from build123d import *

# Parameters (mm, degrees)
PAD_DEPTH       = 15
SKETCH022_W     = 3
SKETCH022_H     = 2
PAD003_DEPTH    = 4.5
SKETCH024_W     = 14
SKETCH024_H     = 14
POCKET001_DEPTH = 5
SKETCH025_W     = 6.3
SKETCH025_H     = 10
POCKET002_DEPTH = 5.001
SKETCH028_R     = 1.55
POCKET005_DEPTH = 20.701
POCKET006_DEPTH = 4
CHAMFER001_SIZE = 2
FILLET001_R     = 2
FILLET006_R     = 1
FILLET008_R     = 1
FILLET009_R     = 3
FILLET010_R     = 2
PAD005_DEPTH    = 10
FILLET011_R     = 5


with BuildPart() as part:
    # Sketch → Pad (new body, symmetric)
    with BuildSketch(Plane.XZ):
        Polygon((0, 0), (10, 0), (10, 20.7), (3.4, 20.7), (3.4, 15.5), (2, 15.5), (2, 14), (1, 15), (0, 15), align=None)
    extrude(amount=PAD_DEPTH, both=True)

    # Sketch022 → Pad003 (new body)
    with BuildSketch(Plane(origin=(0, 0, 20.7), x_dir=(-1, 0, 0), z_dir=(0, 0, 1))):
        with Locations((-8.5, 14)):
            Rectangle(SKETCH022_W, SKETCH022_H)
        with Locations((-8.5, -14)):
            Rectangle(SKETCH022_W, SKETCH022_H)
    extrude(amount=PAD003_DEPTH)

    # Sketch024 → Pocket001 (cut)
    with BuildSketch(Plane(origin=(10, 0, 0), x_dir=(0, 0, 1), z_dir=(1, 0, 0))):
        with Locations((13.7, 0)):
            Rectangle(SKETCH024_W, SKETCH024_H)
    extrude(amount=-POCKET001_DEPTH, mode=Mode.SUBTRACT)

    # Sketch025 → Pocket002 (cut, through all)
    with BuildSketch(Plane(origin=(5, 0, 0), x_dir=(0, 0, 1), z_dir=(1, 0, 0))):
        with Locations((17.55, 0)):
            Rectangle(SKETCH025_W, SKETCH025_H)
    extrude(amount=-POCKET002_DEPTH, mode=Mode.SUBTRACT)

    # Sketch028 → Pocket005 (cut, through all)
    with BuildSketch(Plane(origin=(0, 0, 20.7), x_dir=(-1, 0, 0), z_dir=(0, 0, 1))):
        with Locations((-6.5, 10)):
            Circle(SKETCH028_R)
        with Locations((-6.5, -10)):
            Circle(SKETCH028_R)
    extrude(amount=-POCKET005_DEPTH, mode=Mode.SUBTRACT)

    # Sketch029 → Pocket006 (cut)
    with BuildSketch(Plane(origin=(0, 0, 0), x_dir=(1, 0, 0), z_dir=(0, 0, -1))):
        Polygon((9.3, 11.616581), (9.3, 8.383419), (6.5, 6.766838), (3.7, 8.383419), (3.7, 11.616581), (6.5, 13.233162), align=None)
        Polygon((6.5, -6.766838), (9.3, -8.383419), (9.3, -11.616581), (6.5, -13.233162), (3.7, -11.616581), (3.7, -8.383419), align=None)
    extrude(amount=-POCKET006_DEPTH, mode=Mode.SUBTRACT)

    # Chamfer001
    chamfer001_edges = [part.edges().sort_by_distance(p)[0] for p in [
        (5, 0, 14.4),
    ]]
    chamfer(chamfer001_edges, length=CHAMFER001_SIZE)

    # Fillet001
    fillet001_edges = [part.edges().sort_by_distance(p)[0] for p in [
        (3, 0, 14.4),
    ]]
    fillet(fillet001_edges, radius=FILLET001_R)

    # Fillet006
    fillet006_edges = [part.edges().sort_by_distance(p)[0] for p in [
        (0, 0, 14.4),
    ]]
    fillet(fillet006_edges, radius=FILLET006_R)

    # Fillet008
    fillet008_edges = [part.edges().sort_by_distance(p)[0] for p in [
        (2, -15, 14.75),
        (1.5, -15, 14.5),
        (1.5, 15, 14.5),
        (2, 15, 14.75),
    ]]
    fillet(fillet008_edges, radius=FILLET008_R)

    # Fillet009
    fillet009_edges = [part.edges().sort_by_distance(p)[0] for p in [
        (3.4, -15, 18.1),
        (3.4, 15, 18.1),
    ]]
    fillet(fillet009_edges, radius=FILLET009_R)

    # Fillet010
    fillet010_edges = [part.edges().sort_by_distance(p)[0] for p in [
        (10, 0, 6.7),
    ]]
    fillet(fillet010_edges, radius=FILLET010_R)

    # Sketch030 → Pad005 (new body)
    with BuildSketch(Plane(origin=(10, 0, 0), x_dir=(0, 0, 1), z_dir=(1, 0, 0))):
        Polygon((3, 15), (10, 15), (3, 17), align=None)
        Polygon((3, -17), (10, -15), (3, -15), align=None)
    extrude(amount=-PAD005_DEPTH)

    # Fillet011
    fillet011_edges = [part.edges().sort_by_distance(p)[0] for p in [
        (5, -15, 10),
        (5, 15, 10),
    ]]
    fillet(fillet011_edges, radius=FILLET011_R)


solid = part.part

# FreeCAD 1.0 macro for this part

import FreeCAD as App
import Part
import Sketcher

V = App.Vector
Q = App.Units.Quantity


def edges_at(feature, points):
    """Names of the edges that pass closest to the given points."""
    edges = feature.Shape.Edges
    near = lambda p: min(range(len(edges)), key=lambda i: edges[i].distToShape(Part.Vertex(*p))[0])
    return sorted({f"Edge{near(p) + 1}" for p in points})


def add_polygon(sketch, points):
    """Adds a closed chain of lines whose ends are joined by coincident constraints."""
    first, n = sketch.GeometryCount, len(points)
    for a, b in zip(points, points[1:] + points[:1]):
        sketch.addGeometry(Part.LineSegment(App.Vector(*a, 0), App.Vector(*b, 0)), False)
    for i in range(n):
        sketch.addConstraint(Sketcher.Constraint("Coincident", first + i, 2, first + (i + 1) % n, 1))

doc = App.newDocument("Part")
body = doc.addObject("PartDesign::Body", "Body")

# Sketch on XZ plane
sketch1 = body.newObject("Sketcher::SketchObject", "Sketch")
sketch1.AttachmentSupport = (doc.getObject("XZ_Plane"), [""])
sketch1.MapMode = "FlatFace"
add_polygon(sketch1, [(0, 0), (10, 0), (10, 20.7), (3.4, 20.7), (3.4, 15.5), (2, 15.5), (2, 14), (1, 15), (0, 15)])  # lines 0-8
sketch1.addConstraint(Sketcher.Constraint("Horizontal", 0))
sketch1.addConstraint(Sketcher.Constraint("Vertical", 1))
sketch1.addConstraint(Sketcher.Constraint("Horizontal", 2))
sketch1.addConstraint(Sketcher.Constraint("Vertical", 3))
sketch1.addConstraint(Sketcher.Constraint("Horizontal", 4))
sketch1.addConstraint(Sketcher.Constraint("Vertical", 5))
sketch1.addConstraint(Sketcher.Constraint("Horizontal", 7))
sketch1.addConstraint(Sketcher.Constraint("Vertical", 8))
sketch1.addConstraint(Sketcher.Constraint("Coincident", 8, 2, -1, 1))
sketch1.addConstraint(Sketcher.Constraint("DistanceX", 0, 1, 0, 2, Q("10 mm")))
sketch1.addConstraint(Sketcher.Constraint("DistanceX", 7, 2, 7, 1, Q("1 mm")))
sketch1.addConstraint(Sketcher.Constraint("DistanceY", 8, 2, 8, 1, Q("15 mm")))
sketch1.addConstraint(Sketcher.Constraint("Angle", 6, Q("135 deg")))
sketch1.addConstraint(Sketcher.Constraint("DistanceX", 2, 2, 2, 1, Q("6.6 mm")))
sketch1.addConstraint(Sketcher.Constraint("DistanceX", 4, 2, 4, 1, Q("1.4 mm")))
sketch1.addConstraint(Sketcher.Constraint("DistanceY", 1, 1, 1, 2, Q("20.7 mm")))
sketch1.addConstraint(Sketcher.Constraint("DistanceY", 3, 2, 3, 1, Q("5.2 mm")))
pad1 = body.newObject("PartDesign::Pad", "Pad")
pad1.Profile = sketch1
pad1.Length = 30
pad1.Midplane = True

# Sketch on XY plane
sketch2 = body.newObject("Sketcher::SketchObject", "Sketch001")
sketch2.AttachmentSupport = (doc.getObject("XY_Plane"), [""])
sketch2.MapMode = "FlatFace"
sketch2.AttachmentOffset = App.Placement(V(0, 0, 20.7), App.Rotation())
add_polygon(sketch2, [(10, -15), (10, -13), (7, -13), (7, -15)])  # lines 0-3
add_polygon(sketch2, [(10, 13), (10, 15), (7, 15), (7, 13)])  # lines 4-7
sketch2.addConstraint(Sketcher.Constraint("Vertical", 0))
sketch2.addConstraint(Sketcher.Constraint("Horizontal", 1))
sketch2.addConstraint(Sketcher.Constraint("Vertical", 2))
sketch2.addConstraint(Sketcher.Constraint("Horizontal", 3))
sketch2.addConstraint(Sketcher.Constraint("Vertical", 4))
sketch2.addConstraint(Sketcher.Constraint("Horizontal", 5))
sketch2.addConstraint(Sketcher.Constraint("Vertical", 6))
sketch2.addConstraint(Sketcher.Constraint("Horizontal", 7))
sketch2.addConstraint(Sketcher.Constraint("Symmetric", 3, 2, 4, 2, -1))
sketch2.addConstraint(Sketcher.Constraint("Symmetric", 1, 2, 6, 2, -1))
sketch2.addConstraint(Sketcher.Constraint("DistanceX", 1, 2, 1, 1, Q("3 mm")))
sketch2.addConstraint(Sketcher.Constraint("DistanceY", 0, 1, 0, 2, Q("2 mm")))
sketch2.addConstraint(Sketcher.Constraint("DistanceX", -1, 1, 0, 2, Q("10 mm")))
sketch2.addConstraint(Sketcher.Constraint("DistanceY", 0, 2, -1, 1, Q("13 mm")))
pad2 = body.newObject("PartDesign::Pad", "Pad001")
pad2.Profile = sketch2
pad2.Length = 4.5

# Sketch on YZ plane
sketch3 = body.newObject("Sketcher::SketchObject", "Sketch002")
sketch3.AttachmentSupport = (doc.getObject("YZ_Plane"), [""])
sketch3.MapMode = "FlatFace"
sketch3.AttachmentOffset = App.Placement(V(0, 0, 10), App.Rotation())
add_polygon(sketch3, [(-7, 6.7), (7, 6.7), (7, 20.7), (-7, 20.7)])  # lines 0-3
sketch3.addConstraint(Sketcher.Constraint("Horizontal", 0))
sketch3.addConstraint(Sketcher.Constraint("Vertical", 1))
sketch3.addConstraint(Sketcher.Constraint("Horizontal", 2))
sketch3.addConstraint(Sketcher.Constraint("Vertical", 3))
sketch3.addConstraint(Sketcher.Constraint("Equal", 2, 1))
sketch3.addConstraint(Sketcher.Constraint("DistanceX", 0, 1, 0, 2, Q("14 mm")))
sketch3.addConstraint(Sketcher.Constraint("DistanceX", -1, 1, 0, 2, Q("7 mm")))
sketch3.addConstraint(Sketcher.Constraint("DistanceY", -1, 1, 0, 2, Q("6.7 mm")))
pocket1 = body.newObject("PartDesign::Pocket", "Pocket")
pocket1.Profile = sketch3
pocket1.Length = 5

# Sketch on YZ plane
sketch4 = body.newObject("Sketcher::SketchObject", "Sketch003")
sketch4.AttachmentSupport = (doc.getObject("YZ_Plane"), [""])
sketch4.MapMode = "FlatFace"
sketch4.AttachmentOffset = App.Placement(V(0, 0, 5), App.Rotation())
add_polygon(sketch4, [(-5, 14.4), (5, 14.4), (5, 20.7), (-5, 20.7)])  # lines 0-3
sketch4.addConstraint(Sketcher.Constraint("Horizontal", 0))
sketch4.addConstraint(Sketcher.Constraint("Vertical", 1))
sketch4.addConstraint(Sketcher.Constraint("Horizontal", 2))
sketch4.addConstraint(Sketcher.Constraint("Vertical", 3))
sketch4.addConstraint(Sketcher.Constraint("DistanceX", 0, 1, 0, 2, Q("10 mm")))
sketch4.addConstraint(Sketcher.Constraint("DistanceY", 1, 1, 1, 2, Q("6.3 mm")))
sketch4.addConstraint(Sketcher.Constraint("DistanceX", -1, 1, 0, 2, Q("5 mm")))
sketch4.addConstraint(Sketcher.Constraint("DistanceY", -1, 1, 0, 2, Q("14.4 mm")))
pocket2 = body.newObject("PartDesign::Pocket", "Pocket001")
pocket2.Profile = sketch4
pocket2.Type = "ThroughAll"

# Sketch on XY plane
sketch5 = body.newObject("Sketcher::SketchObject", "Sketch004")
sketch5.AttachmentSupport = (doc.getObject("XY_Plane"), [""])
sketch5.MapMode = "FlatFace"
sketch5.AttachmentOffset = App.Placement(V(0, 0, 20.7), App.Rotation())
sketch5.addGeometry(Part.Circle(V(6.5, -10, 0), V(0, 0, 1), 1.55), False)
sketch5.addGeometry(Part.Circle(V(6.5, 10, 0), V(0, 0, 1), 1.55), False)
sketch5.addConstraint(Sketcher.Constraint("Equal", 0, 1))
sketch5.addConstraint(Sketcher.Constraint("Symmetric", 0, 3, 1, 3, -1))
sketch5.addConstraint(Sketcher.Constraint("Diameter", 0, Q("3.1 mm")))
sketch5.addConstraint(Sketcher.Constraint("DistanceY", 0, 3, -1, 1, Q("10 mm")))
sketch5.addConstraint(Sketcher.Constraint("DistanceX", -1, 1, 0, 3, Q("6.5 mm")))
pocket3 = body.newObject("PartDesign::Pocket", "Pocket002")
pocket3.Profile = sketch5
pocket3.Type = "ThroughAll"

# Sketch on XY plane
sketch6 = body.newObject("Sketcher::SketchObject", "Sketch005")
sketch6.AttachmentSupport = (doc.getObject("XY_Plane"), [""])
sketch6.MapMode = "FlatFace"
add_polygon(sketch6, [(9.3, -8.383419), (9.3, -11.616581), (6.5, -13.233162), (3.7, -11.616581), (3.7, -8.383419), (6.5, -6.766838)])  # lines 0-5
add_polygon(sketch6, [(9.3, 8.383419), (6.5, 6.766838), (3.7, 8.383419), (3.7, 11.616581), (6.5, 13.233162), (9.3, 11.616581)])  # lines 6-11
sketch6.addConstraint(Sketcher.Constraint("Vertical", 0))
sketch6.addConstraint(Sketcher.Constraint("Vertical", 3))
sketch6.addConstraint(Sketcher.Constraint("Vertical", 8))
sketch6.addConstraint(Sketcher.Constraint("Vertical", 11))
sketch6.addConstraint(Sketcher.Constraint("Symmetric", 4, 2, 6, 2, -1))
sketch6.addConstraint(Sketcher.Constraint("Symmetric", 3, 2, 7, 2, -1))
sketch6.addConstraint(Sketcher.Constraint("Symmetric", 1, 2, 9, 2, -1))
sketch6.addConstraint(Sketcher.Constraint("Symmetric", 0, 2, 10, 2, -1))
sketch6.addConstraint(Sketcher.Constraint("Parallel", 1, 4))
sketch6.addConstraint(Sketcher.Constraint("Parallel", 2, 5))
sketch6.addConstraint(Sketcher.Constraint("Parallel", 4, 6))
sketch6.addConstraint(Sketcher.Constraint("Parallel", 5, 7))
sketch6.addConstraint(Sketcher.Constraint("Parallel", 6, 9))
sketch6.addConstraint(Sketcher.Constraint("Horizontal", 0, 2, 2, 2))
sketch6.addConstraint(Sketcher.Constraint("Horizontal", 3, 2, 5, 2))
sketch6.addConstraint(Sketcher.Constraint("Angle", 1, Q("-149.999996 deg")))
sketch6.addConstraint(Sketcher.Constraint("DistanceY", 2, 2, 7, 2, Q("20 mm")))
sketch6.addConstraint(Sketcher.Constraint("DistanceX", -1, 1, 0, 2, Q("9.3 mm")))
sketch6.addConstraint(Sketcher.Constraint("DistanceX", -1, 1, 1, 2, Q("6.5 mm")))
sketch6.addConstraint(Sketcher.Constraint("DistanceY", 0, 2, 0, 1, Q("3.233162 mm")))
pocket4 = body.newObject("PartDesign::Pocket", "Pocket003")
pocket4.Profile = sketch6
pocket4.Length = 4
pocket4.Reversed = True
doc.recompute()

chamfer = body.newObject("PartDesign::Chamfer", "Chamfer")
chamfer.Base = (pocket4, edges_at(pocket4, [(5, 0, 14.4)]))
chamfer.Size = 2
doc.recompute()

fillet = body.newObject("PartDesign::Fillet", "Fillet")
fillet.Base = (chamfer, edges_at(chamfer, [(3, 0, 14.4)]))
fillet.Radius = 2
doc.recompute()

fillet2 = body.newObject("PartDesign::Fillet", "Fillet001")
fillet2.Base = (fillet, edges_at(fillet, [(0, 0, 14.4)]))
fillet2.Radius = 1
doc.recompute()

fillet3 = body.newObject("PartDesign::Fillet", "Fillet002")
fillet3.Base = (fillet2, edges_at(fillet2, [
    (2, -15, 14.75),
    (1.5, -15, 14.5),
    (1.5, 15, 14.5),
    (2, 15, 14.75),
]))
fillet3.Radius = 1
doc.recompute()

fillet4 = body.newObject("PartDesign::Fillet", "Fillet003")
fillet4.Base = (fillet3, edges_at(fillet3, [(3.4, -15, 18.1), (3.4, 15, 18.1)]))
fillet4.Radius = 3
doc.recompute()

fillet5 = body.newObject("PartDesign::Fillet", "Fillet004")
fillet5.Base = (fillet4, edges_at(fillet4, [(10, 0, 6.7)]))
fillet5.Radius = 2

# Sketch on YZ plane
sketch7 = body.newObject("Sketcher::SketchObject", "Sketch006")
sketch7.AttachmentSupport = (doc.getObject("YZ_Plane"), [""])
sketch7.MapMode = "FlatFace"
sketch7.AttachmentOffset = App.Placement(V(0, 0, 10), App.Rotation())
add_polygon(sketch7, [(-15, 3), (-15, 10), (-17, 3)])  # lines 0-2
add_polygon(sketch7, [(17, 3), (15, 10), (15, 3)])  # lines 3-5
sketch7.addConstraint(Sketcher.Constraint("Vertical", 0))
sketch7.addConstraint(Sketcher.Constraint("Horizontal", 2))
sketch7.addConstraint(Sketcher.Constraint("Vertical", 4))
sketch7.addConstraint(Sketcher.Constraint("Horizontal", 5))
sketch7.addConstraint(Sketcher.Constraint("Symmetric", 0, 2, 3, 2, -2))
sketch7.addConstraint(Sketcher.Constraint("Symmetric", 1, 2, 5, 2, -2))
sketch7.addConstraint(Sketcher.Constraint("DistanceX", 2, 1, 2, 2, Q("2 mm")))
sketch7.addConstraint(Sketcher.Constraint("DistanceY", 0, 1, 0, 2, Q("7 mm")))
sketch7.addConstraint(Sketcher.Constraint("DistanceX", 0, 2, -1, 1, Q("15 mm")))
sketch7.addConstraint(Sketcher.Constraint("DistanceY", -1, 1, 0, 2, Q("10 mm")))
pad3 = body.newObject("PartDesign::Pad", "Pad002")
pad3.Profile = sketch7
pad3.Length = 10
pad3.Reversed = True
doc.recompute()

fillet6 = body.newObject("PartDesign::Fillet", "Fillet005")
fillet6.Base = (pad3, edges_at(pad3, [(5, -15, 10), (5, 15, 10)]))
fillet6.Radius = 5

doc.recompute()
